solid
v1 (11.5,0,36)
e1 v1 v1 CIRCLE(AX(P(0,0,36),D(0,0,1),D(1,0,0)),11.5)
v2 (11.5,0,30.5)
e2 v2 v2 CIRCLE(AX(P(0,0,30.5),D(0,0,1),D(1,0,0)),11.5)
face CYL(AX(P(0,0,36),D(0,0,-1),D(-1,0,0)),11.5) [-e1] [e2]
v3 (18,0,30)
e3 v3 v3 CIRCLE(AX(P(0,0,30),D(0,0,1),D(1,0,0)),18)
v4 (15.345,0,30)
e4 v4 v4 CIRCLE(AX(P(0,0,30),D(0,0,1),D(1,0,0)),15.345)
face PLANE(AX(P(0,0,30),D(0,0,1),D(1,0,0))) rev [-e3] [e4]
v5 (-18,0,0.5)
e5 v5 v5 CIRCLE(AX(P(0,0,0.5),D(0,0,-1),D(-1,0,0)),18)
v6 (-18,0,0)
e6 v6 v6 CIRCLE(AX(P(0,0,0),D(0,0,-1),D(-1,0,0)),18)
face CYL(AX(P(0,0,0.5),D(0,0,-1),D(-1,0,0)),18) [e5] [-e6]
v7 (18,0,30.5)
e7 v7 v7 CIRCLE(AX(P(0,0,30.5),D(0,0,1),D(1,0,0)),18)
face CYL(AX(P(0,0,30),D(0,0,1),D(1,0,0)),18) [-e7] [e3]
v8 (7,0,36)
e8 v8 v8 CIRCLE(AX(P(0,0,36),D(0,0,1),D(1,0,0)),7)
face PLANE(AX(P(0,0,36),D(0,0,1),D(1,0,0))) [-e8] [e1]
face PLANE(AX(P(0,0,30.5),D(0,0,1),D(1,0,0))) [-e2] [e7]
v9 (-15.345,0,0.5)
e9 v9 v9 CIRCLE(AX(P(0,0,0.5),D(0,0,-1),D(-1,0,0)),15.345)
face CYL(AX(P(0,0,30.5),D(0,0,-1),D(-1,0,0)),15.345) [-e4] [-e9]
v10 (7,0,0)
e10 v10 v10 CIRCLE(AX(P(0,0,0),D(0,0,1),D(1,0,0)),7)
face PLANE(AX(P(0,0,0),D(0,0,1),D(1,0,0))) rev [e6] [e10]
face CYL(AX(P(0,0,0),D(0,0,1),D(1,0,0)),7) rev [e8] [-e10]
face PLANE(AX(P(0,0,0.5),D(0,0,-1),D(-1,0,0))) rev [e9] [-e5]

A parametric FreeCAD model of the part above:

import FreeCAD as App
import Part
import Sketcher
from FreeCAD import Vector
Q = App.Units.Quantity

doc = App.newDocument("Part")
body = doc.addObject("PartDesign::Body", "Body")

sketch1 = body.newObject("Sketcher::SketchObject", "Sketch")
sketch1.AttachmentSupport = (doc.getObject("XY_Plane"), [""])
sketch1.MapMode = "FlatFace"
sketch1.addGeometry(Part.Circle(Vector(0, 0, 0), Vector(0, 0, 1), 15.345), False)
sketch1.addConstraint([
    Sketcher.Constraint("Coincident", 0, 3, -1, 1),
    Sketcher.Constraint("Diameter", 0, Q("30.69 mm")),
])
pad1 = body.newObject("PartDesign::Pad", "Pad")
pad1.Profile = sketch1
pad1.Length = 30.5

sketch2 = body.newObject("Sketcher::SketchObject", "Sketch001")
sketch2.AttachmentSupport = (doc.getObject("XY_Plane"), [""])
sketch2.MapMode = "FlatFace"
sketch2.AttachmentOffset = App.Placement(Vector(0, 0, 30.5), App.Rotation())
sketch2.addGeometry(Part.Circle(Vector(0, 0, 0), Vector(0, 0, 1), 11.5), False)
sketch2.addConstraint([
    Sketcher.Constraint("Coincident", 0, 3, -1, 1),
    Sketcher.Constraint("Diameter", 0, Q("23 mm")),
])
pad2 = body.newObject("PartDesign::Pad", "Pad001")
pad2.Profile = sketch2
pad2.Length = 5.5

sketch3 = body.newObject("Sketcher::SketchObject", "Sketch002")
sketch3.AttachmentSupport = (doc.getObject("XY_Plane"), [""])
sketch3.MapMode = "FlatFace"
sketch3.AttachmentOffset = App.Placement(Vector(0, 0, 30.5), App.Rotation())
sketch3.addGeometry(Part.Circle(Vector(0, 0, 0), Vector(0, 0, 1), 18), False)
sketch3.addConstraint([
    Sketcher.Constraint("Coincident", 0, 3, -1, 1),
    Sketcher.Constraint("Diameter", 0, Q("36 mm")),
])
pad3 = body.newObject("PartDesign::Pad", "Pad002")
pad3.Profile = sketch3
pad3.Length = 0.5
pad3.Reversed = True

sketch4 = body.newObject("Sketcher::SketchObject", "Sketch003")
sketch4.AttachmentSupport = (doc.getObject("XY_Plane"), [""])
sketch4.MapMode = "FlatFace"
sketch4.addGeometry(Part.Circle(Vector(0, 0, 0), Vector(0, 0, 1), 18), False)
sketch4.addConstraint([
    Sketcher.Constraint("Coincident", 0, 3, -1, 1),
    Sketcher.Constraint("Diameter", 0, Q("36 mm")),
])
pad4 = body.newObject("PartDesign::Pad", "Pad003")
pad4.Profile = sketch4
pad4.Length = 0.5

sketch5 = body.newObject("Sketcher::SketchObject", "Sketch004")
sketch5.AttachmentSupport = (doc.getObject("XY_Plane"), [""])
sketch5.MapMode = "FlatFace"
sketch5.AttachmentOffset = App.Placement(Vector(0, 0, 36), App.Rotation())
sketch5.addGeometry(Part.Circle(Vector(0, 0, 0), Vector(0, 0, 1), 7), False)
sketch5.addConstraint([
    Sketcher.Constraint("Coincident", 0, 3, -1, 1),
    Sketcher.Constraint("Diameter", 0, Q("14 mm")),
])
pocket1 = body.newObject("PartDesign::Pocket", "Pocket")
pocket1.Profile = sketch5
pocket1.Type = "ThroughAll"

doc.recompute()
